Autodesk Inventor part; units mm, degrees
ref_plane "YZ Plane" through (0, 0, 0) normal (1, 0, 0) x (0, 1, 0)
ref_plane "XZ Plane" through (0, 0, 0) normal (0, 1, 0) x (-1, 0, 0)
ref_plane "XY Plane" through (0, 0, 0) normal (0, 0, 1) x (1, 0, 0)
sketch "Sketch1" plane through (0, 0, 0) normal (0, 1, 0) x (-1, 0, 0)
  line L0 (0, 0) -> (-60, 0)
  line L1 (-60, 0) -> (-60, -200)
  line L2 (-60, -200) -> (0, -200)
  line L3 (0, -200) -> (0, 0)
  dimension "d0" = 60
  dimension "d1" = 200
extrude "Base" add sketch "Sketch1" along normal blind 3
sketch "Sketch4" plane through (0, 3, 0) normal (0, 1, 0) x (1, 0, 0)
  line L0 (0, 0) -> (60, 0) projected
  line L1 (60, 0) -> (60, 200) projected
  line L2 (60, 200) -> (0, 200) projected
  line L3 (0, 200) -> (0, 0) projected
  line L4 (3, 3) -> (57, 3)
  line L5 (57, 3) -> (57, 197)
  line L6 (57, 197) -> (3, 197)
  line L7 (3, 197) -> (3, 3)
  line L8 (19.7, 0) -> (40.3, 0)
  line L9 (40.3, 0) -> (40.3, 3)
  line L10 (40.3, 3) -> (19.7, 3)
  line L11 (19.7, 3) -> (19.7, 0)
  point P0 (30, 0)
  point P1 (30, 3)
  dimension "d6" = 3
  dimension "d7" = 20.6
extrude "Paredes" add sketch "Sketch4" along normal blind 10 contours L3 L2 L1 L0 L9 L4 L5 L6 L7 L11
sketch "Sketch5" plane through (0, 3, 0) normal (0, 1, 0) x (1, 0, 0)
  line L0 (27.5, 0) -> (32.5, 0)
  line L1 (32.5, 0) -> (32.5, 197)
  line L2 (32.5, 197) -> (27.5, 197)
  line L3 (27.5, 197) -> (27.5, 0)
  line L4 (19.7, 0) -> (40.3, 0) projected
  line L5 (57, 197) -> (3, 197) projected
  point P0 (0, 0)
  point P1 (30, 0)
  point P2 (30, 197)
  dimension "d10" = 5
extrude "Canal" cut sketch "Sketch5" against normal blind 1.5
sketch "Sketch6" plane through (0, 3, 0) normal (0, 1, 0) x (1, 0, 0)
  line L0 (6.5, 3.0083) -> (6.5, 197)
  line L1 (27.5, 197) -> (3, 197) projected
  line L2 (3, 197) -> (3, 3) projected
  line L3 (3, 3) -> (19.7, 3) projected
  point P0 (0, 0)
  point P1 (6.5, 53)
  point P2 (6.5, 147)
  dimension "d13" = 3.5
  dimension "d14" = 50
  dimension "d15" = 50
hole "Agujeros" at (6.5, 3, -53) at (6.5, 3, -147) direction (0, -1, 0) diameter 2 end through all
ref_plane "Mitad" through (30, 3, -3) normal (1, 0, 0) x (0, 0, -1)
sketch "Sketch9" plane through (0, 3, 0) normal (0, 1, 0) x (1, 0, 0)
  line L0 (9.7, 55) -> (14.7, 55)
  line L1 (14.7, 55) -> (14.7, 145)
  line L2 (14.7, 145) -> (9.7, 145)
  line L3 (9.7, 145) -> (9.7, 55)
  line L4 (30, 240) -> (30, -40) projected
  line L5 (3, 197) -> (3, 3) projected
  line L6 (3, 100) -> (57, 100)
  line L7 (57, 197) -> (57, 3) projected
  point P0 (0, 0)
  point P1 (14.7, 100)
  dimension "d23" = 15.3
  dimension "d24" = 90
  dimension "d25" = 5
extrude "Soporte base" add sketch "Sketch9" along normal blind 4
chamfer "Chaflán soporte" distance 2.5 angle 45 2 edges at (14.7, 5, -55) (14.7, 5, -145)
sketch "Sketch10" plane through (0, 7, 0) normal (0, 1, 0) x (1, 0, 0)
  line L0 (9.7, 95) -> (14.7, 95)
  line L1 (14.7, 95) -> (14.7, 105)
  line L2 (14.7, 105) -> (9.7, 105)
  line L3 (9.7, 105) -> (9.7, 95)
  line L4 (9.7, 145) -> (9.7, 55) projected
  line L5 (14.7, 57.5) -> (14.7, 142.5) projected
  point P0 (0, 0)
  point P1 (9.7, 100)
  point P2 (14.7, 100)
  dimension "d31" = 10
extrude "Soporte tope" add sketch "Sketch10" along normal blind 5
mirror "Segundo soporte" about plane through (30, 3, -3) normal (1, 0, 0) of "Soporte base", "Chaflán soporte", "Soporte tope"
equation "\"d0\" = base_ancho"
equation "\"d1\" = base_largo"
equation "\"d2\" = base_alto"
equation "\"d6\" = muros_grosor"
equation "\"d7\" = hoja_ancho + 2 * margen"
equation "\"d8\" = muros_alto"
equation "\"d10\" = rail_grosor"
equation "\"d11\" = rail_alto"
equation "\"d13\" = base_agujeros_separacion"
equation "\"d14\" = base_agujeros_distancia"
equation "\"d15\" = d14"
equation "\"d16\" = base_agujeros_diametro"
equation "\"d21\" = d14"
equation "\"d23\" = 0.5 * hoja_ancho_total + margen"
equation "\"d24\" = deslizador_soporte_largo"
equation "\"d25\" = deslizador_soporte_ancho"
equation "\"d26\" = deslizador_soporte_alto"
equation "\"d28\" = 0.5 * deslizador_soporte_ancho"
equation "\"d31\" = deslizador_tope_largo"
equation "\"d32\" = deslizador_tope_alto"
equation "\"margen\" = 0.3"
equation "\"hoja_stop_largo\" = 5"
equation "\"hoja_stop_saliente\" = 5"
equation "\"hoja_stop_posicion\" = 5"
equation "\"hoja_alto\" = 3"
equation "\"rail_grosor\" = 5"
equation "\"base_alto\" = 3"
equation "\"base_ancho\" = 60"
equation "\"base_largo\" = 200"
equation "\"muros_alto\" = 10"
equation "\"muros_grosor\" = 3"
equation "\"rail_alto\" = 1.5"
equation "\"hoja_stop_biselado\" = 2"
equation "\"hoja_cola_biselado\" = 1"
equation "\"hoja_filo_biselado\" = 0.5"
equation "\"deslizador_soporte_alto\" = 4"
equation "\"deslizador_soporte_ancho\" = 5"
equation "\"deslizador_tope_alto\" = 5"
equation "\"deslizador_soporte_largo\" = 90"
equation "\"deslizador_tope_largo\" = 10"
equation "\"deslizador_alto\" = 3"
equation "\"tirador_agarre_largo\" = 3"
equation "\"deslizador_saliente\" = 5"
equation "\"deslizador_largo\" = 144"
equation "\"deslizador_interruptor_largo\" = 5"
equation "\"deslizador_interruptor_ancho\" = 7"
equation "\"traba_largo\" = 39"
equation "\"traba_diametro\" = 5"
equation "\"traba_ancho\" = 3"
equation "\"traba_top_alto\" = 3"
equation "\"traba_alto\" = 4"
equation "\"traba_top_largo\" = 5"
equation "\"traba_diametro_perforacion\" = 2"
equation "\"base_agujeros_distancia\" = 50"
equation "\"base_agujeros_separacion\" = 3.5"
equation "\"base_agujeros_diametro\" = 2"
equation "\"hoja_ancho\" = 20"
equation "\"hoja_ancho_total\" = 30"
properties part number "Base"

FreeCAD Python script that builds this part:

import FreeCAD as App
import Part
import Sketcher
from FreeCAD import Vector


def edges_at(feature, points):
    """Names of the edges that pass closest to the given points."""
    edges = feature.Shape.Edges
    near = lambda p: min(range(len(edges)), key=lambda i: edges[i].distToShape(Part.Vertex(*p))[0])
    return sorted({f"Edge{near(p) + 1}" for p in points})

doc = App.newDocument("Part")
body = doc.addObject("PartDesign::Body", "Body")

# Sketch on XZ plane
sketch1 = body.newObject("Sketcher::SketchObject", "Sketch")
sketch1.AttachmentSupport = (doc.getObject("XZ_Plane"), [""])
sketch1.MapMode = "FlatFace"
sketch1.addGeometry(Part.LineSegment(Vector(0, -200, 0), Vector(0, 0, 0)), False)
sketch1.addGeometry(Part.LineSegment(Vector(0, 0, 0), Vector(60, 0, 0)), False)
sketch1.addGeometry(Part.LineSegment(Vector(60, 0, 0), Vector(60, -200, 0)), False)
sketch1.addGeometry(Part.LineSegment(Vector(60, -200, 0), Vector(0, -200, 0)), False)
sketch1.addConstraint(Sketcher.Constraint("Coincident", 0, 2, 1, 1))
sketch1.addConstraint(Sketcher.Constraint("Coincident", 1, 2, 2, 1))
sketch1.addConstraint(Sketcher.Constraint("Coincident", 2, 2, 3, 1))
sketch1.addConstraint(Sketcher.Constraint("Coincident", 3, 2, 0, 1))
sketch1.addConstraint(Sketcher.Constraint("Vertical", 0))
sketch1.addConstraint(Sketcher.Constraint("Horizontal", 1))
sketch1.addConstraint(Sketcher.Constraint("Vertical", 2))
sketch1.addConstraint(Sketcher.Constraint("Horizontal", 3))
sketch1.addConstraint(Sketcher.Constraint("Coincident", 0, 2, -1, 1))
sketch1.addConstraint(Sketcher.Constraint("DistanceX", 1, 1, 1, 2, 60.0))
sketch1.addConstraint(Sketcher.Constraint("DistanceY", 0, 1, 0, 2, 200.0))
pad1 = body.newObject("PartDesign::Pad", "Pad")
pad1.Profile = sketch1
pad1.Length = 3
pad1.Reversed = True

# Sketch on XZ plane
sketch2 = body.newObject("Sketcher::SketchObject", "Sketch001")
sketch2.AttachmentSupport = (doc.getObject("XZ_Plane"), [""])
sketch2.MapMode = "FlatFace"
sketch2.AttachmentOffset = App.Placement(Vector(0, 0, -3), App.Rotation())
sketch2.addGeometry(Part.LineSegment(Vector(0, -200, 0), Vector(0, 0, 0)), False)
sketch2.addGeometry(Part.LineSegment(Vector(0, 0, 0), Vector(19.7, 0, 0)), False)
sketch2.addGeometry(Part.LineSegment(Vector(19.7, 0, 0), Vector(19.7, -3, 0)), False)
sketch2.addGeometry(Part.LineSegment(Vector(19.7, -3, 0), Vector(3, -3, 0)), False)
sketch2.addGeometry(Part.LineSegment(Vector(3, -3, 0), Vector(3, -197, 0)), False)
sketch2.addGeometry(Part.LineSegment(Vector(3, -197, 0), Vector(57, -197, 0)), False)
sketch2.addGeometry(Part.LineSegment(Vector(57, -197, 0), Vector(57, -3, 0)), False)
sketch2.addGeometry(Part.LineSegment(Vector(57, -3, 0), Vector(40.3, -3, 0)), False)
sketch2.addGeometry(Part.LineSegment(Vector(40.3, -3, 0), Vector(40.3, 0, 0)), False)
sketch2.addGeometry(Part.LineSegment(Vector(40.3, 0, 0), Vector(60, 0, 0)), False)
sketch2.addGeometry(Part.LineSegment(Vector(60, 0, 0), Vector(60, -200, 0)), False)
sketch2.addGeometry(Part.LineSegment(Vector(60, -200, 0), Vector(0, -200, 0)), False)
sketch2.addConstraint(Sketcher.Constraint("Coincident", 0, 2, 1, 1))
sketch2.addConstraint(Sketcher.Constraint("Coincident", 1, 2, 2, 1))
sketch2.addConstraint(Sketcher.Constraint("Coincident", 2, 2, 3, 1))
sketch2.addConstraint(Sketcher.Constraint("Coincident", 3, 2, 4, 1))
sketch2.addConstraint(Sketcher.Constraint("Coincident", 4, 2, 5, 1))
sketch2.addConstraint(Sketcher.Constraint("Coincident", 5, 2, 6, 1))
sketch2.addConstraint(Sketcher.Constraint("Coincident", 6, 2, 7, 1))
sketch2.addConstraint(Sketcher.Constraint("Coincident", 7, 2, 8, 1))
sketch2.addConstraint(Sketcher.Constraint("Coincident", 8, 2, 9, 1))
sketch2.addConstraint(Sketcher.Constraint("Coincident", 9, 2, 10, 1))
sketch2.addConstraint(Sketcher.Constraint("Coincident", 10, 2, 11, 1))
sketch2.addConstraint(Sketcher.Constraint("Coincident", 11, 2, 0, 1))
sketch2.addConstraint(Sketcher.Constraint("Vertical", 0))
sketch2.addConstraint(Sketcher.Constraint("Horizontal", 1))
sketch2.addConstraint(Sketcher.Constraint("Vertical", 2))
sketch2.addConstraint(Sketcher.Constraint("Horizontal", 3))
sketch2.addConstraint(Sketcher.Constraint("Vertical", 4))
sketch2.addConstraint(Sketcher.Constraint("Horizontal", 5))
sketch2.addConstraint(Sketcher.Constraint("Vertical", 6))
sketch2.addConstraint(Sketcher.Constraint("Horizontal", 7))
sketch2.addConstraint(Sketcher.Constraint("Vertical", 8))
sketch2.addConstraint(Sketcher.Constraint("Horizontal", 9))
sketch2.addConstraint(Sketcher.Constraint("Vertical", 10))
sketch2.addConstraint(Sketcher.Constraint("Horizontal", 11))
sketch2.addConstraint(Sketcher.Constraint("Coincident", 0, 2, -1, 1))
sketch2.addConstraint(Sketcher.Constraint("PointOnObject", 8, 2, -1))
sketch2.addConstraint(Sketcher.Constraint("Horizontal", 3, 2, 6, 2))
sketch2.addConstraint(Sketcher.Constraint("Equal", 3, 7))
sketch2.addConstraint(Sketcher.Constraint("Equal", 1, 9))
sketch2.addConstraint(Sketcher.Constraint("DistanceY", 2, 2, 2, 1, 3.0))
sketch2.addConstraint(Sketcher.Constraint("DistanceX", -1, 1, 3, 2, 3.0))
sketch2.addConstraint(Sketcher.Constraint("DistanceY", 10, 2, 5, 2, 3.0))
sketch2.addConstraint(Sketcher.Constraint("DistanceX", 2, 2, 7, 2, 20.6))
sketch2.addConstraint(Sketcher.Constraint("DistanceX", 5, 1, 5, 2, 54.0))
sketch2.addConstraint(Sketcher.Constraint("DistanceY", 0, 1, 0, 2, 200.0))
pad2 = body.newObject("PartDesign::Pad", "Pad001")
pad2.Profile = sketch2
pad2.Length = 10
pad2.Reversed = True

# Sketch on XZ plane
sketch3 = body.newObject("Sketcher::SketchObject", "Sketch002")
sketch3.AttachmentSupport = (doc.getObject("XZ_Plane"), [""])
sketch3.MapMode = "FlatFace"
sketch3.AttachmentOffset = App.Placement(Vector(0, 0, -3), App.Rotation())
sketch3.addGeometry(Part.LineSegment(Vector(28, -197, 0), Vector(28, 0, 0)), False)
sketch3.addGeometry(Part.LineSegment(Vector(28, 0, 0), Vector(32, 0, 0)), False)
sketch3.addGeometry(Part.LineSegment(Vector(32, 0, 0), Vector(32, -197, 0)), False)
sketch3.addGeometry(Part.LineSegment(Vector(32, -197, 0), Vector(28, -197, 0)), False)
sketch3.addConstraint(Sketcher.Constraint("Coincident", 0, 2, 1, 1))
sketch3.addConstraint(Sketcher.Constraint("Coincident", 1, 2, 2, 1))
sketch3.addConstraint(Sketcher.Constraint("Coincident", 2, 2, 3, 1))
sketch3.addConstraint(Sketcher.Constraint("Coincident", 3, 2, 0, 1))
sketch3.addConstraint(Sketcher.Constraint("Vertical", 0))
sketch3.addConstraint(Sketcher.Constraint("Horizontal", 1))
sketch3.addConstraint(Sketcher.Constraint("Vertical", 2))
sketch3.addConstraint(Sketcher.Constraint("Horizontal", 3))
sketch3.addConstraint(Sketcher.Constraint("PointOnObject", 0, 2, -1))
sketch3.addConstraint(Sketcher.Constraint("DistanceX", 1, 1, 1, 2, 5.0))
sketch3.addConstraint(Sketcher.Constraint("DistanceY", 0, 1, 0, 2, 197.0))
sketch3.addConstraint(Sketcher.Constraint("DistanceX", -1, 1, 0, 2, 27.5))
pocket1 = body.newObject("PartDesign::Pocket", "Pocket")
pocket1.Profile = sketch3
pocket1.Length = 1.5
pocket1.Reversed = True

# Sketch on XZ plane
sketch4 = body.newObject("Sketcher::SketchObject", "Sketch003")
sketch4.AttachmentSupport = (doc.getObject("XZ_Plane"), [""])
sketch4.MapMode = "FlatFace"
sketch4.AttachmentOffset = App.Placement(Vector(0, 0, -3), App.Rotation())
sketch4.addGeometry(Part.Circle(Vector(6.5, -53, 0), Vector(0, 0, 1), 1), False)
sketch4.addGeometry(Part.Circle(Vector(6.5, -147, 0), Vector(0, 0, 1), 1), False)
sketch4.addConstraint(Sketcher.Constraint("Equal", 0, 1))
sketch4.addConstraint(Sketcher.Constraint("Vertical", 0, 3, 1, 3))
sketch4.addConstraint(Sketcher.Constraint("Diameter", 0, 2.0))
sketch4.addConstraint(Sketcher.Constraint("DistanceY", 0, 3, -1, 1, 53.0))
sketch4.addConstraint(Sketcher.Constraint("DistanceY", 1, 3, -1, 1, 147.0))
sketch4.addConstraint(Sketcher.Constraint("DistanceX", -1, 1, 0, 3, 6.5))
doc.recompute()
hole = body.newObject("PartDesign::Hole", "Hole")
hole.Profile = sketch4
hole.ThreadType = "None"
hole.Diameter = 2
hole.DepthType = "ThroughAll"
hole.Reversed = True

# Sketch on XZ plane
sketch5 = body.newObject("Sketcher::SketchObject", "Sketch004")
sketch5.AttachmentSupport = (doc.getObject("XZ_Plane"), [""])
sketch5.MapMode = "FlatFace"
sketch5.AttachmentOffset = App.Placement(Vector(0, 0, -3), App.Rotation())
sketch5.addGeometry(Part.LineSegment(Vector(10, -55, 0), Vector(15, -55, 0)), False)
sketch5.addGeometry(Part.LineSegment(Vector(15, -55, 0), Vector(15, -145, 0)), False)
sketch5.addGeometry(Part.LineSegment(Vector(15, -145, 0), Vector(10, -145, 0)), False)
sketch5.addGeometry(Part.LineSegment(Vector(10, -145, 0), Vector(10, -55, 0)), False)
sketch5.addConstraint(Sketcher.Constraint("Coincident", 0, 2, 1, 1))
sketch5.addConstraint(Sketcher.Constraint("Coincident", 1, 2, 2, 1))
sketch5.addConstraint(Sketcher.Constraint("Coincident", 2, 2, 3, 1))
sketch5.addConstraint(Sketcher.Constraint("Coincident", 3, 2, 0, 1))
sketch5.addConstraint(Sketcher.Constraint("Horizontal", 0))
sketch5.addConstraint(Sketcher.Constraint("Vertical", 1))
sketch5.addConstraint(Sketcher.Constraint("Horizontal", 2))
sketch5.addConstraint(Sketcher.Constraint("Vertical", 3))
sketch5.addConstraint(Sketcher.Constraint("DistanceX", 0, 1, 0, 2, 5.0))
sketch5.addConstraint(Sketcher.Constraint("DistanceY", 1, 2, 1, 1, 90.0))
sketch5.addConstraint(Sketcher.Constraint("DistanceY", 0, 2, -1, 1, 55.0))
sketch5.addConstraint(Sketcher.Constraint("DistanceX", -1, 1, 0, 2, 14.7))
pad3 = body.newObject("PartDesign::Pad", "Pad002")
pad3.Profile = sketch5
pad3.Length = 4
pad3.Reversed = True
doc.recompute()

chamfer = body.newObject("PartDesign::Chamfer", "Chamfer")
chamfer.Base = (pad3, edges_at(pad3, [(14.7, 5, -55), (14.7, 5, -145)]))
chamfer.Size = 2.5

# Sketch on XZ plane
sketch6 = body.newObject("Sketcher::SketchObject", "Sketch005")
sketch6.AttachmentSupport = (doc.getObject("XZ_Plane"), [""])
sketch6.MapMode = "FlatFace"
sketch6.AttachmentOffset = App.Placement(Vector(0, 0, -7), App.Rotation())
sketch6.addGeometry(Part.LineSegment(Vector(10, -105, 0), Vector(10, -95, 0)), False)
sketch6.addGeometry(Part.LineSegment(Vector(10, -95, 0), Vector(15, -95, 0)), False)
sketch6.addGeometry(Part.LineSegment(Vector(15, -95, 0), Vector(15, -105, 0)), False)
sketch6.addGeometry(Part.LineSegment(Vector(15, -105, 0), Vector(10, -105, 0)), False)
sketch6.addConstraint(Sketcher.Constraint("Coincident", 0, 2, 1, 1))
sketch6.addConstraint(Sketcher.Constraint("Coincident", 1, 2, 2, 1))
sketch6.addConstraint(Sketcher.Constraint("Coincident", 2, 2, 3, 1))
sketch6.addConstraint(Sketcher.Constraint("Coincident", 3, 2, 0, 1))
sketch6.addConstraint(Sketcher.Constraint("Vertical", 0))
sketch6.addConstraint(Sketcher.Constraint("Horizontal", 1))
sketch6.addConstraint(Sketcher.Constraint("Vertical", 2))
sketch6.addConstraint(Sketcher.Constraint("Horizontal", 3))
sketch6.addConstraint(Sketcher.Constraint("DistanceY", 0, 1, 0, 2, 10.0))
sketch6.addConstraint(Sketcher.Constraint("DistanceX", 1, 1, 1, 2, 5.0))
sketch6.addConstraint(Sketcher.Constraint("DistanceY", 0, 2, -1, 1, 95.0))
sketch6.addConstraint(Sketcher.Constraint("DistanceX", -1, 1, 0, 2, 9.7))
pad4 = body.newObject("PartDesign::Pad", "Pad003")
pad4.Profile = sketch6
pad4.Length = 5
pad4.Reversed = True
doc.recompute()

datumplane = body.newObject("PartDesign::Plane", "DatumPlane")
datumplane.AttachmentSupport = (doc.getObject("YZ_Plane"), [""])
datumplane.MapMode = "FlatFace"
datumplane.AttachmentOffset = App.Placement(Vector(0, 0, 30), App.Rotation())
mirrored = body.newObject("PartDesign::Mirrored", "Mirrored")
mirrored.Originals = [pad3, chamfer, pad4]
mirrored.MirrorPlane = (datumplane, [""])
body.Tip = mirrored

doc.recompute()
